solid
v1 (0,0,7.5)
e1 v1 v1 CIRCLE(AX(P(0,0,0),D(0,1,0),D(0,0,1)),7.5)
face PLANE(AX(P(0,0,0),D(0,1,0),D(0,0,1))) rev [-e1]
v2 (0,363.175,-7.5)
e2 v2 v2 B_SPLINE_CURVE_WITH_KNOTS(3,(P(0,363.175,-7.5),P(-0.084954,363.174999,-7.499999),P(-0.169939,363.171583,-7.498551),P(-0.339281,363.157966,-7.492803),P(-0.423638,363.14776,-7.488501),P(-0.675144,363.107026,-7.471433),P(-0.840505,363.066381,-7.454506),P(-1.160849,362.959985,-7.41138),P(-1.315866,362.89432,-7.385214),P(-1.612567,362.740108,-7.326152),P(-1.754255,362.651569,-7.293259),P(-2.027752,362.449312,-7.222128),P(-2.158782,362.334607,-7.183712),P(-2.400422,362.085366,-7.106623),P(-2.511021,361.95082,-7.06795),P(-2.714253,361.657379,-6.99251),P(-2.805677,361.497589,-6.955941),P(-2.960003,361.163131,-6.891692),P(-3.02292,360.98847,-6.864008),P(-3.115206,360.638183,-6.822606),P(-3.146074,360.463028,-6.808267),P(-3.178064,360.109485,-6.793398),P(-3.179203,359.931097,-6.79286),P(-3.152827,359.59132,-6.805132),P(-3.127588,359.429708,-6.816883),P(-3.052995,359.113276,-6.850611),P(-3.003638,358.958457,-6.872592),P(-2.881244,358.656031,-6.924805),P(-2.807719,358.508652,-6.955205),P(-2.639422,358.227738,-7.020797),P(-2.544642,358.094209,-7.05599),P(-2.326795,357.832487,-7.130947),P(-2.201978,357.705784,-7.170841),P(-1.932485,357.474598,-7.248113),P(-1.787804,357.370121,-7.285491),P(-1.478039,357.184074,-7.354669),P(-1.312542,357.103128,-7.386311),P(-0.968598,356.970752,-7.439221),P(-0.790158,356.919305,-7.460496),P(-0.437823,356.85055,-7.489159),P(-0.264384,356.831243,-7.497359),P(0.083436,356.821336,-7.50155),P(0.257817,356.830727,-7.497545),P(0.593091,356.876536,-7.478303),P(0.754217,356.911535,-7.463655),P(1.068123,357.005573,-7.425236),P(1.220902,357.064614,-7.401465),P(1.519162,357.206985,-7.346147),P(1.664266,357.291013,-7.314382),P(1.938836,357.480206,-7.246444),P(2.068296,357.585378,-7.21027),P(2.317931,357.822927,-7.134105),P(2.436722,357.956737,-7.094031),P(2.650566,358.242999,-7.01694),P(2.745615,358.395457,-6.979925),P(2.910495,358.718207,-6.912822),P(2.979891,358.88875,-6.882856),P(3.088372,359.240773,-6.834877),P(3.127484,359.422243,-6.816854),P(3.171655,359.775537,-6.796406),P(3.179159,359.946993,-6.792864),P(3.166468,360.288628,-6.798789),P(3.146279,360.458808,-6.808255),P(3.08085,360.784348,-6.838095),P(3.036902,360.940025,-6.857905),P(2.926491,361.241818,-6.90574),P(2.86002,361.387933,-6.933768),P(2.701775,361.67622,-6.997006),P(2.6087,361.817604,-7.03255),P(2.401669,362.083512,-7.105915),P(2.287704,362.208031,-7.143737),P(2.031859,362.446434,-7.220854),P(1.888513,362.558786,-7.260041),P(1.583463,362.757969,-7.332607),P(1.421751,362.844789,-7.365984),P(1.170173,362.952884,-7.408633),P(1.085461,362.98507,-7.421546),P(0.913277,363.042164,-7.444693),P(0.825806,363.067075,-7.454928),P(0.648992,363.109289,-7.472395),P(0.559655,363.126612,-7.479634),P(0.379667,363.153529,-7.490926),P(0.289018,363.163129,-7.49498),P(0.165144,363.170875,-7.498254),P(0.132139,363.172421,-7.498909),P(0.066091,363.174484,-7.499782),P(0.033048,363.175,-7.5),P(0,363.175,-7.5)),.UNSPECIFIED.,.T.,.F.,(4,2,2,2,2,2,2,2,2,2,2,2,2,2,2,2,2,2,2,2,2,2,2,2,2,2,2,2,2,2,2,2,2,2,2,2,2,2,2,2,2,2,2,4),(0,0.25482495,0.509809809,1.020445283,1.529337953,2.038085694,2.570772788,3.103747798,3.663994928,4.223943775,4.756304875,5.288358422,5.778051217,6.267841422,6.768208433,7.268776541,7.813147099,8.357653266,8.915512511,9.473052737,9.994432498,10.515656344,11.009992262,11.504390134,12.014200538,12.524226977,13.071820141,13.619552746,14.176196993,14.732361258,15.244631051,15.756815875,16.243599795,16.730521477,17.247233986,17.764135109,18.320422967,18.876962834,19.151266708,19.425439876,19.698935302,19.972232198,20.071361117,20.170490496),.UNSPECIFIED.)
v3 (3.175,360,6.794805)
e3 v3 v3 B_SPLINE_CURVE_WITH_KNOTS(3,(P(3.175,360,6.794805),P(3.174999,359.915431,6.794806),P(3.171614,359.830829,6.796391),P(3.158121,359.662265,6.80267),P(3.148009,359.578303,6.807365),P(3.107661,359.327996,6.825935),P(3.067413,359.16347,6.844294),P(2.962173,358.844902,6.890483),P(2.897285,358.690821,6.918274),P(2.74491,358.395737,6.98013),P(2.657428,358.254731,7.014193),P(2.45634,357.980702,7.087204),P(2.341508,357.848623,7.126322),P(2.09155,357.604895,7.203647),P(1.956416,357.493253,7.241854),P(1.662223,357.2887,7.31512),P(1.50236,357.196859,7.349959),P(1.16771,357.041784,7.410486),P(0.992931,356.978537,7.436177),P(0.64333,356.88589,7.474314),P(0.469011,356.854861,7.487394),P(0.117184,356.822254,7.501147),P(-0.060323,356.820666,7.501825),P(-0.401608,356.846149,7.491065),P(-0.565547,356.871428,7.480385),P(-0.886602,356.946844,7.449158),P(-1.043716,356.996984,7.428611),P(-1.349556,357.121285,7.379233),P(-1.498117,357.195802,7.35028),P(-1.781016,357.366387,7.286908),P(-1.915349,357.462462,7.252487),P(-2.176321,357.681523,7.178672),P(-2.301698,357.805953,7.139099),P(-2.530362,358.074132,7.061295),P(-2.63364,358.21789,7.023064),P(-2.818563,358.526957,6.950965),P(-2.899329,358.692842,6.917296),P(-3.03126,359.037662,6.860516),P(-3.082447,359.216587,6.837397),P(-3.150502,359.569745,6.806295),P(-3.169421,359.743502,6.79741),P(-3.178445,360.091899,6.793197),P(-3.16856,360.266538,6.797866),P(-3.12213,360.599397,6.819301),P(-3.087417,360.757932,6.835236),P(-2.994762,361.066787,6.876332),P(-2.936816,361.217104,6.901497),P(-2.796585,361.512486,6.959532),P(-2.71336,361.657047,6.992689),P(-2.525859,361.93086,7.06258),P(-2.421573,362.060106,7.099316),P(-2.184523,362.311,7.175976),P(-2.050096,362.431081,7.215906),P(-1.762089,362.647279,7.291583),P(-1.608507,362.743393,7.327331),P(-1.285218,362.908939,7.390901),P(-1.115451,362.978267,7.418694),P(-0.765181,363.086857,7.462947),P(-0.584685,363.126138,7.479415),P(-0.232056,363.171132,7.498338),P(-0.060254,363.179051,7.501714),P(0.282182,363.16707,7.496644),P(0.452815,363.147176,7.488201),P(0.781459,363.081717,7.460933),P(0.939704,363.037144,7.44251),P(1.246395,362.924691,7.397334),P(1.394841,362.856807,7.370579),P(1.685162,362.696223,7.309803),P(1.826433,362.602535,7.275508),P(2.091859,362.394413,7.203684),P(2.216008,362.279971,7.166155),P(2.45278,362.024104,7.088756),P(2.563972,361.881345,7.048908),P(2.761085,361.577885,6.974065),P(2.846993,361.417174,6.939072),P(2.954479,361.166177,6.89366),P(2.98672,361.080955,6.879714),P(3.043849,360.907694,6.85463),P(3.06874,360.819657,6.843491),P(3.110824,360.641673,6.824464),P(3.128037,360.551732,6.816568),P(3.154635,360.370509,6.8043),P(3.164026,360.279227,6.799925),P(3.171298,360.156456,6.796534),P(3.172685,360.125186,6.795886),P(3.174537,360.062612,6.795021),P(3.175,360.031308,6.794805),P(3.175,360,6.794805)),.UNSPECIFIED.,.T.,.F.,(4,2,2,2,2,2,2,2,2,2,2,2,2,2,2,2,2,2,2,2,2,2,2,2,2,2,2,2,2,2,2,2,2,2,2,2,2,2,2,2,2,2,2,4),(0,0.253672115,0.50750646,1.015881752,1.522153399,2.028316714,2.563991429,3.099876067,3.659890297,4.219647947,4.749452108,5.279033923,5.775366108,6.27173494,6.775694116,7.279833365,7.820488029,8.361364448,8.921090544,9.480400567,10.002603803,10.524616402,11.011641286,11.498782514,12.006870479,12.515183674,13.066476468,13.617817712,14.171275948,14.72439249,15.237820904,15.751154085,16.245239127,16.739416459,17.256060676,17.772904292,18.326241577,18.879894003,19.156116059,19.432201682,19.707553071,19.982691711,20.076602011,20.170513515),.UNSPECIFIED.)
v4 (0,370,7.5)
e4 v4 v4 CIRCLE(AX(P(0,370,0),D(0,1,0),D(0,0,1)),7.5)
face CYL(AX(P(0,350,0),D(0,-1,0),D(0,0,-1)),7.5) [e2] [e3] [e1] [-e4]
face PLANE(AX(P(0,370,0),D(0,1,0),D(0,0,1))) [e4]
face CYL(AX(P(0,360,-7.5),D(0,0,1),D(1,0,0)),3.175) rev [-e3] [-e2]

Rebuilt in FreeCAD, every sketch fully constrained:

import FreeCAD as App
import Part
import Sketcher
from FreeCAD import Vector
Q = App.Units.Quantity

doc = App.newDocument("Part")
body = doc.addObject("PartDesign::Body", "Body")

# Sketch on XZ plane
sketch1 = doc.addObject("Sketcher::SketchObject", "Sketch")
body.addObject(sketch1)
sketch1.AttachmentSupport = (doc.XZ_Plane, [""])
sketch1.MapMode = "FlatFace"
sketch1.addGeometry(Part.Circle(Vector(0, 0, 0), Vector(0, 0, 1), 8), False)
sketch1.addConstraint([
    Sketcher.Constraint("Coincident", 0, 3, -1, 1),
    Sketcher.Constraint("Diameter", 0, Q("15 mm")),
])
pad1 = doc.addObject("PartDesign::Pad", "Pad")
body.addObject(pad1)
pad1.Profile = sketch1
pad1.Length = 350
pad1.Reversed = True

# Sketch on XZ plane
sketch2 = doc.addObject("Sketcher::SketchObject", "Sketch001")
body.addObject(sketch2)
sketch2.AttachmentSupport = (doc.XZ_Plane, [""])
sketch2.MapMode = "FlatFace"
sketch2.AttachmentOffset = App.Placement(Vector(0, 0, -350), App.Rotation())
sketch2.addGeometry(Part.Circle(Vector(0, 0, 0), Vector(0, 0, 1), 8), False)
sketch2.addConstraint([
    Sketcher.Constraint("Coincident", 0, 3, -1, 1),
    Sketcher.Constraint("Diameter", 0, Q("15 mm")),
])
pad2 = doc.addObject("PartDesign::Pad", "Pad001")
body.addObject(pad2)
pad2.Profile = sketch2
pad2.Length = 20
pad2.Reversed = True

# Sketch on XY plane
sketch3 = doc.addObject("Sketcher::SketchObject", "Sketch002")
body.addObject(sketch3)
sketch3.AttachmentSupport = (doc.XY_Plane, [""])
sketch3.MapMode = "FlatFace"
sketch3.addGeometry(Part.Circle(Vector(0, 360, 0), Vector(0, 0, 1), 3.2), False)
sketch3.addConstraint([
    Sketcher.Constraint("PointOnObject", 0, 3, -2),
    Sketcher.Constraint("Diameter", 0, Q("6.35 mm")),
    Sketcher.Constraint("DistanceY", -1, 1, 0, 3, Q("360 mm")),
])
pocket1 = doc.addObject("PartDesign::Pocket", "Pocket")
body.addObject(pocket1)
pocket1.Profile = sketch3
pocket1.Type = "ThroughAll"
pocket1.Midplane = True

doc.recompute()
